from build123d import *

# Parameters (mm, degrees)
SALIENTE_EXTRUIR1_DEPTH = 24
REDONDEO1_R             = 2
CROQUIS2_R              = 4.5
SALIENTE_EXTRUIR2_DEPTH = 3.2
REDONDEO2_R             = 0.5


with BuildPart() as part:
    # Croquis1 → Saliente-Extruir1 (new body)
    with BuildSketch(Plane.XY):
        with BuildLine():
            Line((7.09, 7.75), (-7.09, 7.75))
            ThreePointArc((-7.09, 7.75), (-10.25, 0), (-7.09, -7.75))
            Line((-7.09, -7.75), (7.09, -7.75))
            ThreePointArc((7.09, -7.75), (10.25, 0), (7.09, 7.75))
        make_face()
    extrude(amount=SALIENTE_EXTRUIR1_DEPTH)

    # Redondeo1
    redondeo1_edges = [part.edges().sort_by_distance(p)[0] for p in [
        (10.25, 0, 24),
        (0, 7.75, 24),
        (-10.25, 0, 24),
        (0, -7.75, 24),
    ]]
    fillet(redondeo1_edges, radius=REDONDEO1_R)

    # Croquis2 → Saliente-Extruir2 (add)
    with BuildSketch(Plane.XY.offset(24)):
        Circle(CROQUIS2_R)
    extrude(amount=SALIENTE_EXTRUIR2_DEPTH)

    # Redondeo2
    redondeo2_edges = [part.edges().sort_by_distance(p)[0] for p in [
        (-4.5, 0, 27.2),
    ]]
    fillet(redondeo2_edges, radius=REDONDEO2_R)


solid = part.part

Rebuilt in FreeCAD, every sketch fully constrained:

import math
import FreeCAD as App
import Part
import Sketcher
Q = App.Units.Quantity


def edges_at(feature, points):
    """Names of the edges that pass closest to the given points."""
    edges = feature.Shape.Edges
    near = lambda p: min(range(len(edges)), key=lambda i: edges[i].distToShape(Part.Vertex(*p))[0])
    return sorted({f"Edge{near(p) + 1}" for p in points})

doc = App.newDocument("Part")
body = doc.addObject("PartDesign::Body", "Body")

sketch1 = body.newObject("Sketcher::SketchObject", "Sketch")
sketch1.AttachmentSupport = (doc.getObject("XY_Plane"), [""])
sketch1.MapMode = "FlatFace"
sketch1.addGeometry([
    Part.LineSegment(App.Vector(7, 8, 0), App.Vector(-7, 8, 0)),
    Part.ArcOfCircle(Part.Circle(App.Vector(1, 0, 0), App.Vector(0, 0, 1), 11), math.radians(136), math.radians(224)),
    Part.LineSegment(App.Vector(-7, -8, 0), App.Vector(7, -8, 0)),
    Part.ArcOfCircle(Part.Circle(App.Vector(-1, 0, 0), App.Vector(0, 0, 1), 11), math.radians(-44), math.radians(44)),
], False)
sketch1.addConstraint([
    Sketcher.Constraint("Coincident", 0, 2, 1, 1),
    Sketcher.Constraint("Coincident", 1, 2, 2, 1),
    Sketcher.Constraint("Coincident", 2, 2, 3, 1),
    Sketcher.Constraint("Coincident", 3, 2, 0, 1),
    Sketcher.Constraint("Horizontal", 0),
    Sketcher.Constraint("Horizontal", 2),
    Sketcher.Constraint("Equal", 1, 3),
    Sketcher.Constraint("Symmetric", 1, 3, 3, 3, -1, 1),
    Sketcher.Constraint("Symmetric", 0, 2, 1, 2, -1),
    Sketcher.Constraint("DistanceX", 0, 2, 0, 1, Q("14.18 mm")),
    Sketcher.Constraint("DistanceY", 1, 2, 0, 2, Q("15.5 mm")),
    Sketcher.Constraint("Radius", 1, Q("11.08356 mm")),
])
pad1 = body.newObject("PartDesign::Pad", "Pad")
pad1.Profile = sketch1
pad1.Length = 24
doc.recompute()

fillet = body.newObject("PartDesign::Fillet", "Fillet")
fillet.Base = (pad1, edges_at(pad1, [
    (10.25, 0, 24),
    (0, 7.75, 24),
    (-10.25, 0, 24),
    (0, -7.75, 24),
]))
fillet.Radius = 2

sketch2 = body.newObject("Sketcher::SketchObject", "Sketch001")
sketch2.AttachmentSupport = (doc.getObject("XY_Plane"), [""])
sketch2.MapMode = "FlatFace"
sketch2.AttachmentOffset = App.Placement(App.Vector(0, 0, 24), App.Rotation())
sketch2.addGeometry(Part.Circle(App.Vector(0, 0, 0), App.Vector(0, 0, 1), 4.5), False)
sketch2.addConstraint([
    Sketcher.Constraint("Coincident", 0, 3, -1, 1),
    Sketcher.Constraint("Diameter", 0, Q("9 mm")),
])
pad2 = body.newObject("PartDesign::Pad", "Pad001")
pad2.Profile = sketch2
pad2.Length = 3.2
doc.recompute()

fillet2 = body.newObject("PartDesign::Fillet", "Fillet001")
fillet2.Base = (pad2, edges_at(pad2, [(-4.5, 0, 27.2)]))
fillet2.Radius = 0.5

doc.recompute()
